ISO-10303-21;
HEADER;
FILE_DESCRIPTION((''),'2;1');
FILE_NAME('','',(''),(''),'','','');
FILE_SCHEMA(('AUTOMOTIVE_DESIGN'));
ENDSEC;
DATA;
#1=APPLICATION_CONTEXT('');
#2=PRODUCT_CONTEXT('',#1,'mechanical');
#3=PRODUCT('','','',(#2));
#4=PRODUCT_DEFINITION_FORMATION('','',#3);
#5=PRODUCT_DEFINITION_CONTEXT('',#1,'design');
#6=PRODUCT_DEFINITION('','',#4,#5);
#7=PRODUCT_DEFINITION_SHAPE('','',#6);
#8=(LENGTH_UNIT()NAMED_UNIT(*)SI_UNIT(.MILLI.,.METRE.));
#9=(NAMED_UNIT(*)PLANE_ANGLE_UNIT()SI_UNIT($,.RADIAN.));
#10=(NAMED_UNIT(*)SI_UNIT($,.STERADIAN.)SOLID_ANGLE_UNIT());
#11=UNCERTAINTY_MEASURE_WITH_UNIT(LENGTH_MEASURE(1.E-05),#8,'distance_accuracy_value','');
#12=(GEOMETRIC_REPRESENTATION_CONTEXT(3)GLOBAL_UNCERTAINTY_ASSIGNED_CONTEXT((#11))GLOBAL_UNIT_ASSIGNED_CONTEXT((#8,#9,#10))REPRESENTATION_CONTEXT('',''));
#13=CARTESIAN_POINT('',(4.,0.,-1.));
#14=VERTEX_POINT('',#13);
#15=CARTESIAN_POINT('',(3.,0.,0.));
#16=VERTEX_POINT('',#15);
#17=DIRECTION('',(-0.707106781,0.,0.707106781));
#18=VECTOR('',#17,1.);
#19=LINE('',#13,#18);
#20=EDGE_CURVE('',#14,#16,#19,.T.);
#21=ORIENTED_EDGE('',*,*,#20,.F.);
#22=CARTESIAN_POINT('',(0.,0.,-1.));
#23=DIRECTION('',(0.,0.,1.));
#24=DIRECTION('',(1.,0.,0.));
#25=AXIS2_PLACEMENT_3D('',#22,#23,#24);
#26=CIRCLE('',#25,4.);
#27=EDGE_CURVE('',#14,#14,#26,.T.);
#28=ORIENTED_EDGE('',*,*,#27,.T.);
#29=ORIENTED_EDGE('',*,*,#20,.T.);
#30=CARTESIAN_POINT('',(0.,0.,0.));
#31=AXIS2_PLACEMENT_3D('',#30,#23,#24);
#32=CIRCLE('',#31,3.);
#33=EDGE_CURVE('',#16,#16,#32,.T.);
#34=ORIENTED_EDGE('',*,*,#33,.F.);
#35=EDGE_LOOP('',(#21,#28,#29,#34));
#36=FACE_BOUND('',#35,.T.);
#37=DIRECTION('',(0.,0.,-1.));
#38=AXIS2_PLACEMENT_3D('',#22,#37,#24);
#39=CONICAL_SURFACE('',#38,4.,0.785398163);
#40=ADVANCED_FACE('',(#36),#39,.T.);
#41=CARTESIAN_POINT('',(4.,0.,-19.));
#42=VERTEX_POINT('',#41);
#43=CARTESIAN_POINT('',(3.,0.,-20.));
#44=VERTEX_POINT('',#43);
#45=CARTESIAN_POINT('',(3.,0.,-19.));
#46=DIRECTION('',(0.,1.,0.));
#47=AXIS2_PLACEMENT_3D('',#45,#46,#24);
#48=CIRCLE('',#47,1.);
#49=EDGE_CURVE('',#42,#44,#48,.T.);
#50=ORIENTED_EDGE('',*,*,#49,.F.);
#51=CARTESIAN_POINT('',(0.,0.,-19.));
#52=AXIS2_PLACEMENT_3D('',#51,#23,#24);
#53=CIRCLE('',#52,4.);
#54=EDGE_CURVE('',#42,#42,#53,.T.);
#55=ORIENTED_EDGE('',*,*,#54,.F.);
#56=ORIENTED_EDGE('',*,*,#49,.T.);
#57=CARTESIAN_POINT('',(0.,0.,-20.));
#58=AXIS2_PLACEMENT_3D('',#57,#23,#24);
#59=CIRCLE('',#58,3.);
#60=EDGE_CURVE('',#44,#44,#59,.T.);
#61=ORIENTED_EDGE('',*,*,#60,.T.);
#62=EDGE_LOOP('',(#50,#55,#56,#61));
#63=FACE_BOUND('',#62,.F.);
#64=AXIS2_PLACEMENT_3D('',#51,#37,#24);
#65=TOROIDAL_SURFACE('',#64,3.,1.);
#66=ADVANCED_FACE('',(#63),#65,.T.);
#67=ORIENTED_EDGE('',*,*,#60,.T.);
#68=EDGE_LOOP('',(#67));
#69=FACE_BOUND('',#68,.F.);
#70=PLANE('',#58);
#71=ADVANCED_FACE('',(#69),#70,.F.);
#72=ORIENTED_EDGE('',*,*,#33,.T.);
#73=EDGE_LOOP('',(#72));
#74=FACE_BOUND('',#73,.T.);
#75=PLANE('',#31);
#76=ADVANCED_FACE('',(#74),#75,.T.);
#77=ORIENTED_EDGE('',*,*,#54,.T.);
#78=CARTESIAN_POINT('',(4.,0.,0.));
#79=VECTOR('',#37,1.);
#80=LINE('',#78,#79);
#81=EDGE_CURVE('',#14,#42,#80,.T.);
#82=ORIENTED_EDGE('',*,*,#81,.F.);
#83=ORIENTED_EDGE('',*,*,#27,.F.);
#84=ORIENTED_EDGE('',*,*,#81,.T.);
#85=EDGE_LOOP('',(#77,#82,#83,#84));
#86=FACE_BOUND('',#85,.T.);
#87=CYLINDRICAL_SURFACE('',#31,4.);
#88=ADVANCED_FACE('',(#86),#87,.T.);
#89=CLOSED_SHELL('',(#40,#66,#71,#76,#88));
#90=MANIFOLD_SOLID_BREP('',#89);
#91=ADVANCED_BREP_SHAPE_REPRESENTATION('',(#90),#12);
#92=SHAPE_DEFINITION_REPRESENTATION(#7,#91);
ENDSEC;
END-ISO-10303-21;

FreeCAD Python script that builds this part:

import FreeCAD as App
import Part
import Sketcher


def edges_at(feature, points):
    """Names of the edges that pass closest to the given points."""
    edges = feature.Shape.Edges
    near = lambda p: min(range(len(edges)), key=lambda i: edges[i].distToShape(Part.Vertex(*p))[0])
    return sorted({f"Edge{near(p) + 1}" for p in points})

doc = App.newDocument("Part")
body = doc.addObject("PartDesign::Body", "Body")

sketch1 = body.newObject("Sketcher::SketchObject", "Sketch")
sketch1.AttachmentSupport = (doc.getObject("XY_Plane"), [""])
sketch1.MapMode = "FlatFace"
sketch1.addGeometry(Part.Circle(App.Vector(0, 0, 0), App.Vector(0, 0, 1), 4), False)
sketch1.addConstraint(Sketcher.Constraint("Coincident", 0, 3, -1, 1))
sketch1.addConstraint(Sketcher.Constraint("Diameter", 0, 8.0))
pad1 = body.newObject("PartDesign::Pad", "Pad")
pad1.Profile = sketch1
pad1.Length = 20
pad1.Reversed = True
doc.recompute()

fillet = body.newObject("PartDesign::Fillet", "Fillet")
fillet.Base = (pad1, edges_at(pad1, [(-4, 0, -20)]))
fillet.Radius = 1
doc.recompute()

chamfer = body.newObject("PartDesign::Chamfer", "Chamfer")
chamfer.Base = (fillet, edges_at(fillet, [(-4, 0, 0)]))
chamfer.Size = 1

doc.recompute()
